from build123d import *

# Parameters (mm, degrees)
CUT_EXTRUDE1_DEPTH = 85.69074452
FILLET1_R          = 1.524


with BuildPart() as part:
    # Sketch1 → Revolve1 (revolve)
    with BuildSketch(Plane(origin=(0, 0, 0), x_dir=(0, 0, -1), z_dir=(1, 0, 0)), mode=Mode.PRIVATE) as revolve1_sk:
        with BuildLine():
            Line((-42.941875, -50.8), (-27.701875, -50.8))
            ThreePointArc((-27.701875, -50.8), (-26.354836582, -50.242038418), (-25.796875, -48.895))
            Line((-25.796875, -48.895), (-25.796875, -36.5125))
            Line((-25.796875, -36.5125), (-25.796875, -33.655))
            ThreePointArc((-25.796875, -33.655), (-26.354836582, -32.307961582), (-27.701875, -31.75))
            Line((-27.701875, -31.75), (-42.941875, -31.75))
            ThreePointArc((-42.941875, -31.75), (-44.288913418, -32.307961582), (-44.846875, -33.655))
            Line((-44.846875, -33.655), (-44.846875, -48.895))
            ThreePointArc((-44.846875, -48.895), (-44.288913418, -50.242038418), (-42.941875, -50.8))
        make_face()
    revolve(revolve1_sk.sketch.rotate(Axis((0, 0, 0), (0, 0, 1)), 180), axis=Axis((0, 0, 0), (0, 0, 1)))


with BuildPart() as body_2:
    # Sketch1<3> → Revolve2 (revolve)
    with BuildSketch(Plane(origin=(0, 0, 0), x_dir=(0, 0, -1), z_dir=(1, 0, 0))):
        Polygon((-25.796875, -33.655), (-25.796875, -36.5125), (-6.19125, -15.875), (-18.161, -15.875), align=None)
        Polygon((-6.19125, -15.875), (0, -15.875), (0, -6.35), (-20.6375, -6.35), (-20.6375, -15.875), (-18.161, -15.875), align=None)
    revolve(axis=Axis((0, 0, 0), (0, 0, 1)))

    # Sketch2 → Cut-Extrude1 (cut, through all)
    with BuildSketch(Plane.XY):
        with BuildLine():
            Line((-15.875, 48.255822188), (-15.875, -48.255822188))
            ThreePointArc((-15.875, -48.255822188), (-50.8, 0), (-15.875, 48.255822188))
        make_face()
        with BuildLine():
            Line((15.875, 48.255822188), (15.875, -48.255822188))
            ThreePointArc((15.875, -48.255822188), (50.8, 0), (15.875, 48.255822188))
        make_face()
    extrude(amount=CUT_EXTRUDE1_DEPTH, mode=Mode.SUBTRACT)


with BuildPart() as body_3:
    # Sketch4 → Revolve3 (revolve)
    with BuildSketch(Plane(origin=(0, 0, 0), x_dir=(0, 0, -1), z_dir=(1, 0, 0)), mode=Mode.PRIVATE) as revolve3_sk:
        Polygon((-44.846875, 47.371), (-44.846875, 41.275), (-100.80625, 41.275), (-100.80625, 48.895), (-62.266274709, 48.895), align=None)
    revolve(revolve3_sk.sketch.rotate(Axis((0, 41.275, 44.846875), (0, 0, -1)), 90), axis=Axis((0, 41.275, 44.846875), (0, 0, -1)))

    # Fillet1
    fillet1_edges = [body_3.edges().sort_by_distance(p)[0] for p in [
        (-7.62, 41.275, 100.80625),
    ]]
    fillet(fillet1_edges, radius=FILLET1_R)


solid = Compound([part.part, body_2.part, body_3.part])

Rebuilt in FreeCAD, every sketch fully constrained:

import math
import FreeCAD as App
import Part
import Sketcher
from FreeCAD import Vector
Q = App.Units.Quantity


def edges_at(feature, points):
    """Names of the edges that pass closest to the given points."""
    edges = feature.Shape.Edges
    near = lambda p: min(range(len(edges)), key=lambda i: edges[i].distToShape(Part.Vertex(*p))[0])
    return sorted({f"Edge{near(p) + 1}" for p in points})

doc = App.newDocument("Part")
params = doc.addObject("Spreadsheet::Sheet", "Params")
for row, (alias, value) in enumerate([
    ("sketch1_width", "0.6 in"),
    ("sketch1_radius", "0.075 in"),
    ("revolution_angle", "360 deg"),
    ("sketch2_width", "0.375 in"),
    ("sketch2_height", "0.8125 in"),
    ("revolution2_angle", "360 deg"),
    ("sketch3_radius", "2 in"),
    ("sketch4_width", "0.3 in"),
    ("sketch4_width2", "0.24 in"),
    ("sketch4_height", "2.203125 in"),
    ("revolution3_angle", "360 deg"),
    ("fillet_radius", "0.06 in"),
], start=1):
    params.set(f"A{row}", alias)
    params.set(f"B{row}", "=" + value)
    params.setAlias(f"B{row}", alias)

body = doc.addObject("PartDesign::Body", "Body")

# Sketch on YZ plane
sketch1 = doc.addObject("Sketcher::SketchObject", "Sketch")
body.addObject(sketch1)
sketch1.AttachmentSupport = (doc.YZ_Plane, [""])
sketch1.MapMode = "FlatFace"
sketch1.addGeometry([
    Part.LineSegment(Vector(-50.8, 42.941875, 0), Vector(-50.8, 27.701875, 0)),  # 0
    Part.ArcOfCircle(Part.Circle(Vector(-48.895, 27.701875, 0), Vector(0, 0, 1), 1.905), math.radians(-180), math.radians(-90)),  # 1
    Part.LineSegment(Vector(-48.895, 25.796875, 0), Vector(-33.655, 25.796875, 0)),  # 2
    Part.ArcOfCircle(Part.Circle(Vector(-33.655, 27.701875, 0), Vector(0, 0, 1), 1.905), math.radians(-90), math.radians(0)),  # 3
    Part.LineSegment(Vector(-31.75, 27.701875, 0), Vector(-31.75, 42.941875, 0)),  # 4
    Part.ArcOfCircle(Part.Circle(Vector(-33.655, 42.941875, 0), Vector(0, 0, 1), 1.905), math.radians(0), math.radians(90)),  # 5
    Part.LineSegment(Vector(-33.655, 44.846875, 0), Vector(-48.895, 44.846875, 0)),  # 6
    Part.ArcOfCircle(Part.Circle(Vector(-48.895, 42.941875, 0), Vector(0, 0, 1), 1.905), math.radians(90), math.radians(180)),  # 7
], False)
sketch1.addConstraint([
    Sketcher.Constraint("Tangent", 0, 2, 1, 1),
    Sketcher.Constraint("Tangent", 1, 2, 2, 1),
    Sketcher.Constraint("Tangent", 2, 2, 3, 1),
    Sketcher.Constraint("Tangent", 3, 2, 4, 1),
    Sketcher.Constraint("Tangent", 4, 2, 5, 1),
    Sketcher.Constraint("Tangent", 5, 2, 6, 1),
    Sketcher.Constraint("Tangent", 6, 2, 7, 1),
    Sketcher.Constraint("Tangent", 7, 2, 0, 1),
    Sketcher.Constraint("Vertical", 0),
    Sketcher.Constraint("Horizontal", 2),
    Sketcher.Constraint("Vertical", 4),
    Sketcher.Constraint("Horizontal", 6),
    Sketcher.Constraint("Equal", 1, 3),
    Sketcher.Constraint("Equal", 3, 5),
    Sketcher.Constraint("Equal", 5, 7),
    Sketcher.Constraint("Equal", 6, 0),
    Sketcher.Constraint("DistanceX", 2, 1, 2, 2, Q("0.6 in")),
    Sketcher.Constraint("DistanceX", 0, 2, -1, 1, Q("2 in")),
    Sketcher.Constraint("Radius", 1, Q("0.075 in")),
    Sketcher.Constraint("DistanceY", -1, 1, 1, 2, Q("1.015625 in")),
])
sketch1.setExpression("Constraints[16]", "Params.sketch1_width")
sketch1.setExpression("Constraints[18]", "Params.sketch1_radius")
revolution = doc.addObject("PartDesign::Revolution", "Revolution")
body.addObject(revolution)
revolution.Profile = sketch1
revolution.ReferenceAxis = (sketch1, ["V_Axis"])
revolution.setExpression("Angle", "Params.revolution_angle")
body2 = doc.addObject("PartDesign::Body", "Body001")

# Sketch on YZ plane
sketch2 = doc.addObject("Sketcher::SketchObject", "Sketch001")
body2.addObject(sketch2)
sketch2.AttachmentSupport = (doc.getObject("YZ_Plane001"), [""])
sketch2.MapMode = "FlatFace"
sketch2.addGeometry([
    Part.LineSegment(Vector(-33.655, 25.796875, 0), Vector(-36.5125, 25.796875, 0)),  # 0
    Part.LineSegment(Vector(-36.5125, 25.796875, 0), Vector(-15.875, 6.19125, 0)),  # 1
    Part.LineSegment(Vector(-15.875, 6.19125, 0), Vector(-15.875, 0, 0)),  # 2
    Part.LineSegment(Vector(-15.875, 0, 0), Vector(-6.35, 0, 0)),  # 3
    Part.LineSegment(Vector(-6.35, 0, 0), Vector(-6.35, 20.6375, 0)),  # 4
    Part.LineSegment(Vector(-6.35, 20.6375, 0), Vector(-15.875, 20.6375, 0)),  # 5
    Part.LineSegment(Vector(-15.875, 20.6375, 0), Vector(-15.875, 18.161, 0)),  # 6
    Part.LineSegment(Vector(-15.875, 18.161, 0), Vector(-33.655, 25.796875, 0)),  # 7
], False)
sketch2.addConstraint([
    Sketcher.Constraint("Coincident", 0, 2, 1, 1),
    Sketcher.Constraint("Coincident", 1, 2, 2, 1),
    Sketcher.Constraint("Coincident", 2, 2, 3, 1),
    Sketcher.Constraint("Coincident", 3, 2, 4, 1),
    Sketcher.Constraint("Coincident", 4, 2, 5, 1),
    Sketcher.Constraint("Coincident", 5, 2, 6, 1),
    Sketcher.Constraint("Coincident", 6, 2, 7, 1),
    Sketcher.Constraint("Coincident", 7, 2, 0, 1),
    Sketcher.Constraint("Horizontal", 0),
    Sketcher.Constraint("Vertical", 2),
    Sketcher.Constraint("Horizontal", 3),
    Sketcher.Constraint("Vertical", 4),
    Sketcher.Constraint("Horizontal", 5),
    Sketcher.Constraint("Vertical", 6),
    Sketcher.Constraint("PointOnObject", 2, 2, -1),
    Sketcher.Constraint("Vertical", 2, 2, 5, 2),
    Sketcher.Constraint("DistanceX", 7, 2, 5, 2, Q("0.7 in")),
    Sketcher.Constraint("DistanceX", 3, 1, 3, 2, Q("0.375 in")),
    Sketcher.Constraint("DistanceY", 4, 1, 4, 2, Q("0.8125 in")),
    Sketcher.Constraint("DistanceX", 3, 2, -1, 1, Q("0.25 in")),
    Sketcher.Constraint("DistanceX", 0, 2, 0, 1, Q("0.1125 in")),
    Sketcher.Constraint("DistanceY", 6, 2, 6, 1, Q("0.0975 in")),
    Sketcher.Constraint("DistanceY", -1, 1, 0, 2, Q("1.015625 in")),
    Sketcher.Constraint("DistanceY", 2, 2, 2, 1, Q("6.19125 mm")),
])
sketch2.setExpression("Constraints[17]", "Params.sketch2_width")
sketch2.setExpression("Constraints[18]", "Params.sketch2_height")
revolution2 = doc.addObject("PartDesign::Revolution", "Revolution001")
body2.addObject(revolution2)
revolution2.Profile = sketch2
revolution2.ReferenceAxis = (sketch2, ["V_Axis"])
revolution2.setExpression("Angle", "Params.revolution2_angle")

# Sketch on XY plane
sketch3 = doc.addObject("Sketcher::SketchObject", "Sketch002")
body2.addObject(sketch3)
sketch3.AttachmentSupport = (doc.getObject("XY_Plane001"), [""])
sketch3.MapMode = "FlatFace"
sketch3.addGeometry([
    Part.LineSegment(Vector(-15.875, -48.255822, 0), Vector(-15.875, 48.255822, 0)),
    Part.ArcOfCircle(Part.Circle(Vector(0, 0, 0), Vector(0, 0, 1), 50.8), math.radians(108.209957), math.radians(251.790043)),
    Part.LineSegment(Vector(15.875, 48.255822, 0), Vector(15.875, -48.255822, 0)),
    Part.ArcOfCircle(Part.Circle(Vector(0, 0, 0), Vector(0, 0, 1), 50.8), math.radians(-71.790043), math.radians(71.790043)),
], False)
sketch3.addConstraint([
    Sketcher.Constraint("Coincident", 0, 1, 1, 2),
    Sketcher.Constraint("Coincident", 1, 1, 0, 2),
    Sketcher.Constraint("Coincident", 2, 1, 3, 2),
    Sketcher.Constraint("Coincident", 3, 1, 2, 2),
    Sketcher.Constraint("Vertical", 0),
    Sketcher.Constraint("Vertical", 2),
    Sketcher.Constraint("Coincident", 1, 3, -1, 1),
    Sketcher.Constraint("Coincident", 3, 3, -1, 1),
    Sketcher.Constraint("Equal", 1, 3),
    Sketcher.Constraint("Horizontal", 1, 1, 2, 1),
    Sketcher.Constraint("Radius", 1, Q("2 in")),
    Sketcher.Constraint("DistanceX", 1, 1, 2, 1, Q("1.25 in")),
])
sketch3.setExpression("Constraints[10]", "Params.sketch3_radius")
pocket1 = doc.addObject("PartDesign::Pocket", "Pocket")
body2.addObject(pocket1)
pocket1.Profile = sketch3
pocket1.Type = "ThroughAll"
pocket1.Reversed = True
body3 = doc.addObject("PartDesign::Body", "Body002")

# Sketch on YZ plane
sketch4 = doc.addObject("Sketcher::SketchObject", "Sketch003")
body3.addObject(sketch4)
sketch4.AttachmentSupport = (doc.getObject("YZ_Plane002"), [""])
sketch4.MapMode = "FlatFace"
sketch4.addGeometry([
    Part.LineSegment(Vector(41.275, 44.846875, 0), Vector(47.371, 44.846875, 0)),  # 0
    Part.LineSegment(Vector(47.371, 44.846875, 0), Vector(48.895, 62.266275, 0)),  # 1
    Part.LineSegment(Vector(48.895, 62.266275, 0), Vector(48.895, 100.80625, 0)),  # 2
    Part.LineSegment(Vector(48.895, 100.80625, 0), Vector(41.275, 100.80625, 0)),  # 3
    Part.LineSegment(Vector(41.275, 100.80625, 0), Vector(41.275, 44.846875, 0)),  # 4
], False)
sketch4.addGeometry(Part.LineSegment(Vector(41.275, 100.80625, 0), Vector(41.275, 44.846875, 0)), True)  # axis
sketch4.addConstraint([
    Sketcher.Constraint("Coincident", 0, 2, 1, 1),
    Sketcher.Constraint("Coincident", 1, 2, 2, 1),
    Sketcher.Constraint("Coincident", 2, 2, 3, 1),
    Sketcher.Constraint("Coincident", 3, 2, 4, 1),
    Sketcher.Constraint("Coincident", 4, 2, 0, 1),
    Sketcher.Constraint("Horizontal", 0),
    Sketcher.Constraint("Vertical", 2),
    Sketcher.Constraint("Horizontal", 3),
    Sketcher.Constraint("Vertical", 4),
    Sketcher.Constraint("Vertical", 5),
    Sketcher.Constraint("Coincident", 5, 1, 3, 2),
    Sketcher.Constraint("Horizontal", 0, 2, 5, 2),
    Sketcher.Constraint("DistanceX", 3, 2, 3, 1, Q("0.3 in")),
    Sketcher.Constraint("Angle", 1, Q("85 deg")),
    Sketcher.Constraint("DistanceX", 0, 1, 0, 2, Q("0.24 in")),
    Sketcher.Constraint("DistanceY", 4, 2, 4, 1, Q("2.203125 in")),
    Sketcher.Constraint("DistanceX", -1, 1, 0, 2, Q("1.865 in")),
    Sketcher.Constraint("DistanceY", -1, 1, 0, 2, Q("1.765625 in")),
])
sketch4.setExpression("Constraints[12]", "Params.sketch4_width")
sketch4.setExpression("Constraints[14]", "Params.sketch4_width2")
sketch4.setExpression("Constraints[15]", "Params.sketch4_height")
revolution3 = doc.addObject("PartDesign::Revolution", "Revolution002")
body3.addObject(revolution3)
revolution3.Profile = sketch4
revolution3.ReferenceAxis = (sketch4, ["Axis0"])
revolution3.setExpression("Angle", "Params.revolution3_angle")
doc.recompute()

fillet = doc.addObject("PartDesign::Fillet", "Fillet")
body3.addObject(fillet)
fillet.Base = (revolution3, edges_at(revolution3, [(-7.62, 41.275, 100.806)]))
fillet.setExpression("Radius", "Params.fillet_radius")

doc.recompute()
